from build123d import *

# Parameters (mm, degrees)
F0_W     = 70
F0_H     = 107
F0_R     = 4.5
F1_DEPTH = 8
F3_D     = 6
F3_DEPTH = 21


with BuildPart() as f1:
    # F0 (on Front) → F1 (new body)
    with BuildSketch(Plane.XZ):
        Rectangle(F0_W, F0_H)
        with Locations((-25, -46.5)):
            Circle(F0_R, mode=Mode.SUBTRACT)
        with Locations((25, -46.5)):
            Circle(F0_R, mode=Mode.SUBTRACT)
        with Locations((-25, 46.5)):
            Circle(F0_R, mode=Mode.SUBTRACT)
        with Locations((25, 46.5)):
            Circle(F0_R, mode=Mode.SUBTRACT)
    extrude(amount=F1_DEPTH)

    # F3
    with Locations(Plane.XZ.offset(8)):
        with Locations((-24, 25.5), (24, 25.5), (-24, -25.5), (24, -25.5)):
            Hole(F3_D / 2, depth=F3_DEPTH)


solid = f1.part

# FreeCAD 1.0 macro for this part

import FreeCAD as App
import Part
import Sketcher
from FreeCAD import Vector

doc = App.newDocument("Part")
params = doc.addObject("Spreadsheet::Sheet", "Params")
for row, (alias, value) in enumerate([
    ("sketch1_diameter", "9 mm"),
    ("sketch1_width", "70 mm"),
    ("sketch1_height", "107 mm"),
    ("pad1_length", "8 mm"),
    ("sketch2_diameter", "6 mm"),
    ("hole_diameter", "6 mm"),
    ("hole_depth", "21 mm"),
], start=1):
    params.set(f"A{row}", alias)
    params.set(f"B{row}", "=" + value)
    params.setAlias(f"B{row}", alias)

body = doc.addObject("PartDesign::Body", "Body")

sketch1 = body.newObject("Sketcher::SketchObject", "Sketch")
sketch1.AttachmentSupport = (doc.getObject("XZ_Plane"), [""])
sketch1.MapMode = "FlatFace"
sketch1.addGeometry(Part.LineSegment(Vector(-35, 53.5, 0), Vector(-35, -53.5, 0)), False)
sketch1.addGeometry(Part.LineSegment(Vector(-35, -53.5, 0), Vector(35, -53.5, 0)), False)
sketch1.addGeometry(Part.LineSegment(Vector(35, -53.5, 0), Vector(35, 53.5, 0)), False)
sketch1.addGeometry(Part.LineSegment(Vector(35, 53.5, 0), Vector(-35, 53.5, 0)), False)
sketch1.addGeometry(Part.Circle(Vector(-25, -46.5, 0), Vector(0, 0, 1), 4.5), False)
sketch1.addGeometry(Part.Circle(Vector(25, -46.5, 0), Vector(0, 0, 1), 4.5), False)
sketch1.addGeometry(Part.Circle(Vector(-25, 46.5, 0), Vector(0, 0, 1), 4.5), False)
sketch1.addGeometry(Part.Circle(Vector(25, 46.5, 0), Vector(0, 0, 1), 4.5), False)
sketch1.addConstraint(Sketcher.Constraint("Coincident", 0, 2, 1, 1))
sketch1.addConstraint(Sketcher.Constraint("Coincident", 1, 2, 2, 1))
sketch1.addConstraint(Sketcher.Constraint("Coincident", 2, 2, 3, 1))
sketch1.addConstraint(Sketcher.Constraint("Coincident", 3, 2, 0, 1))
sketch1.addConstraint(Sketcher.Constraint("Vertical", 0))
sketch1.addConstraint(Sketcher.Constraint("Horizontal", 1))
sketch1.addConstraint(Sketcher.Constraint("Vertical", 2))
sketch1.addConstraint(Sketcher.Constraint("Horizontal", 3))
sketch1.addConstraint(Sketcher.Constraint("Equal", 4, 5))
sketch1.addConstraint(Sketcher.Constraint("Equal", 5, 6))
sketch1.addConstraint(Sketcher.Constraint("Equal", 6, 7))
sketch1.addConstraint(Sketcher.Constraint("Symmetric", 5, 3, 6, 3, -1, 1))
sketch1.addConstraint(Sketcher.Constraint("Symmetric", 4, 3, 7, 3, -1, 1))
sketch1.addConstraint(Sketcher.Constraint("Symmetric", 0, 2, 2, 2, -1, 1))
sketch1.addConstraint(Sketcher.Constraint("Symmetric", 4, 3, 5, 3, -2))
sketch1.addConstraint(Sketcher.Constraint("Diameter", 4, 9.0))
sketch1.addConstraint(Sketcher.Constraint("DistanceX", 1, 1, 1, 2, 70.0))
sketch1.addConstraint(Sketcher.Constraint("DistanceY", 0, 2, 0, 1, 107.0))
sketch1.addConstraint(Sketcher.Constraint("DistanceX", 4, 3, -1, 1, 25.0))
sketch1.addConstraint(Sketcher.Constraint("DistanceY", 4, 3, 6, 3, 93.0))
sketch1.setExpression("Constraints[15]", "Params.sketch1_diameter")
sketch1.setExpression("Constraints[16]", "Params.sketch1_width")
sketch1.setExpression("Constraints[17]", "Params.sketch1_height")
pad1 = body.newObject("PartDesign::Pad", "Pad")
pad1.Profile = sketch1
pad1.setExpression("Length", "Params.pad1_length")

sketch2 = body.newObject("Sketcher::SketchObject", "Sketch001")
sketch2.AttachmentSupport = (doc.getObject("XZ_Plane"), [""])
sketch2.MapMode = "FlatFace"
sketch2.AttachmentOffset = App.Placement(Vector(0, 0, 8), App.Rotation())
sketch2.addGeometry(Part.Circle(Vector(-24, 25.5, 0), Vector(0, 0, 1), 3), False)
sketch2.addGeometry(Part.Circle(Vector(24, 25.5, 0), Vector(0, 0, 1), 3), False)
sketch2.addGeometry(Part.Circle(Vector(-24, -25.5, 0), Vector(0, 0, 1), 3), False)
sketch2.addGeometry(Part.Circle(Vector(24, -25.5, 0), Vector(0, 0, 1), 3), False)
sketch2.addConstraint(Sketcher.Constraint("Equal", 0, 1))
sketch2.addConstraint(Sketcher.Constraint("Equal", 1, 2))
sketch2.addConstraint(Sketcher.Constraint("Equal", 2, 3))
sketch2.addConstraint(Sketcher.Constraint("Symmetric", 1, 3, 2, 3, -1, 1))
sketch2.addConstraint(Sketcher.Constraint("Symmetric", 0, 3, 3, 3, -1, 1))
sketch2.addConstraint(Sketcher.Constraint("Symmetric", 0, 3, 1, 3, -2))
sketch2.addConstraint(Sketcher.Constraint("Diameter", 0, 6.0))
sketch2.addConstraint(Sketcher.Constraint("DistanceX", 0, 3, -1, 1, 24.0))
sketch2.addConstraint(Sketcher.Constraint("DistanceY", 2, 3, 0, 3, 51.0))
sketch2.setExpression("Constraints[6]", "Params.sketch2_diameter")
doc.recompute()
hole = body.newObject("PartDesign::Hole", "Hole")
hole.Profile = sketch2
hole.ThreadType = "None"
hole.setExpression("Diameter", "Params.hole_diameter")
hole.DepthType = "Dimension"
hole.setExpression("Depth", "Params.hole_depth")
hole.DrillPoint = "Flat"

doc.recompute()
